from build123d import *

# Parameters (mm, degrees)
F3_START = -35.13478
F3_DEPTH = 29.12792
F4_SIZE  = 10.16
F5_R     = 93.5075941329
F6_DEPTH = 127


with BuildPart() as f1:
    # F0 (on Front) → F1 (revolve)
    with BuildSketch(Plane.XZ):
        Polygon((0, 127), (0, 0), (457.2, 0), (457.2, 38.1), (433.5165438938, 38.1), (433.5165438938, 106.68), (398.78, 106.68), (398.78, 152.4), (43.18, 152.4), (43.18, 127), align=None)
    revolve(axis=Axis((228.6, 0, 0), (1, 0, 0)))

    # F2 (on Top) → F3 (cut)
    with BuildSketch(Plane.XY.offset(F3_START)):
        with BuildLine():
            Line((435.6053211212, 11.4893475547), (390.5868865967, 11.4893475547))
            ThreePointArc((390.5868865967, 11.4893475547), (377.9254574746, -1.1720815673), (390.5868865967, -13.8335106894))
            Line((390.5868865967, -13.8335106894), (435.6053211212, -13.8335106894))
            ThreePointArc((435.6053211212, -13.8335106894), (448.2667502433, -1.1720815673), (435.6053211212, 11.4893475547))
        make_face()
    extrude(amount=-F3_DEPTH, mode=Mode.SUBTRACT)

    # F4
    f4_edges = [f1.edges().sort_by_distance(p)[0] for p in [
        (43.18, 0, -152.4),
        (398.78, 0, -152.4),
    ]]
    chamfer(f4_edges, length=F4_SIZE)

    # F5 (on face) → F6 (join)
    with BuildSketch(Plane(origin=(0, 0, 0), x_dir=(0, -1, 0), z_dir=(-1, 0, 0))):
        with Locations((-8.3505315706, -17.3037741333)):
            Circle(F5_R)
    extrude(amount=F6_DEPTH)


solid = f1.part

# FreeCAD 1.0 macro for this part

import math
import FreeCAD as App
import Part
import Sketcher
Q = App.Units.Quantity


def edges_at(feature, points):
    """Names of the edges that pass closest to the given points."""
    edges = feature.Shape.Edges
    near = lambda p: min(range(len(edges)), key=lambda i: edges[i].distToShape(Part.Vertex(*p))[0])
    return sorted({f"Edge{near(p) + 1}" for p in points})


def add_polygon(sketch, points):
    """Adds a closed chain of lines whose ends are joined by coincident constraints."""
    first, n = sketch.GeometryCount, len(points)
    for a, b in zip(points, points[1:] + points[:1]):
        sketch.addGeometry(Part.LineSegment(App.Vector(*a, 0), App.Vector(*b, 0)), False)
    for i in range(n):
        sketch.addConstraint(Sketcher.Constraint("Coincident", first + i, 2, first + (i + 1) % n, 1))

doc = App.newDocument("Part")
body = doc.addObject("PartDesign::Body", "Body")

sketch1 = doc.addObject("Sketcher::SketchObject", "Sketch")
body.addObject(sketch1)
sketch1.AttachmentSupport = (doc.XZ_Plane, [""])
sketch1.MapMode = "FlatFace"
add_polygon(sketch1, [(0, 127), (0, 0), (457, 0), (457, 38), (434, 38), (434, 107), (399, 107), (399, 152), (43, 152), (43, 127)])
sketch1.addConstraint(Sketcher.Constraint("Vertical", 0))
sketch1.addConstraint(Sketcher.Constraint("Horizontal", 1))
sketch1.addConstraint(Sketcher.Constraint("Vertical", 2))
sketch1.addConstraint(Sketcher.Constraint("Horizontal", 3))
sketch1.addConstraint(Sketcher.Constraint("Vertical", 4))
sketch1.addConstraint(Sketcher.Constraint("Horizontal", 5))
sketch1.addConstraint(Sketcher.Constraint("Vertical", 6))
sketch1.addConstraint(Sketcher.Constraint("Horizontal", 7))
sketch1.addConstraint(Sketcher.Constraint("Vertical", 8))
sketch1.addConstraint(Sketcher.Constraint("Horizontal", 9))
sketch1.addConstraint(Sketcher.Constraint("Coincident", 0, 2, -1, 1))
sketch1.addConstraint(Sketcher.Constraint("DistanceX", 1, 1, 1, 2, Q("18 in")))
sketch1.addConstraint(Sketcher.Constraint("DistanceX", 7, 2, 7, 1, Q("14 in")))
sketch1.addConstraint(Sketcher.Constraint("DistanceY", 0, 2, 0, 1, Q("5 in")))
sketch1.addConstraint(Sketcher.Constraint("DistanceY", 8, 2, 8, 1, Q("1 in")))
sketch1.addConstraint(Sketcher.Constraint("DistanceX", 9, 2, 9, 1, Q("1.7 in")))
sketch1.addConstraint(Sketcher.Constraint("DistanceY", 2, 1, 2, 2, Q("1.5 in")))
sketch1.addConstraint(Sketcher.Constraint("DistanceY", 4, 1, 4, 2, Q("2.7 in")))
sketch1.addConstraint(Sketcher.Constraint("DistanceX", 3, 2, 3, 1, 23.683456))
revolution = doc.addObject("PartDesign::Revolution", "Revolution")
body.addObject(revolution)
revolution.Profile = sketch1
revolution.ReferenceAxis = (sketch1, ["H_Axis"])
revolution.Angle = 360

sketch2 = doc.addObject("Sketcher::SketchObject", "Sketch001")
body.addObject(sketch2)
sketch2.AttachmentSupport = (doc.XY_Plane, [""])
sketch2.MapMode = "FlatFace"
sketch2.AttachmentOffset = App.Placement(App.Vector(0, 0, -35.13478), App.Rotation())
sketch2.addGeometry(Part.LineSegment(App.Vector(436, 11, 0), App.Vector(391, 11, 0)), False)
sketch2.addGeometry(Part.ArcOfCircle(Part.Circle(App.Vector(391, -1, 0), App.Vector(0, 0, 1), 13), math.radians(90), math.radians(270)), False)
sketch2.addGeometry(Part.LineSegment(App.Vector(391, -14, 0), App.Vector(436, -14, 0)), False)
sketch2.addGeometry(Part.ArcOfCircle(Part.Circle(App.Vector(436, -1, 0), App.Vector(0, 0, 1), 13), math.radians(-90), math.radians(90)), False)
sketch2.addConstraint(Sketcher.Constraint("Tangent", 0, 2, 1, 1))
sketch2.addConstraint(Sketcher.Constraint("Tangent", 1, 2, 2, 1))
sketch2.addConstraint(Sketcher.Constraint("Tangent", 2, 2, 3, 1))
sketch2.addConstraint(Sketcher.Constraint("Tangent", 3, 2, 0, 1))
sketch2.addConstraint(Sketcher.Constraint("Horizontal", 0))
sketch2.addConstraint(Sketcher.Constraint("Horizontal", 2))
sketch2.addConstraint(Sketcher.Constraint("Radius", 1, 12.661429))
sketch2.addConstraint(Sketcher.Constraint("DistanceX", 0, 2, 0, 1, 45.018435))
sketch2.addConstraint(Sketcher.Constraint("DistanceY", 1, 3, -1, 1, 1.172082))
sketch2.addConstraint(Sketcher.Constraint("DistanceX", -1, 1, 3, 3, 435.605321))
pocket1 = doc.addObject("PartDesign::Pocket", "Pocket")
body.addObject(pocket1)
pocket1.Profile = sketch2
pocket1.Length = 29.12792
doc.recompute()

chamfer = doc.addObject("PartDesign::Chamfer", "Chamfer")
body.addObject(chamfer)
chamfer.Base = (pocket1, edges_at(pocket1, [(43.18, 0, -152.4), (398.78, 0, -152.4)]))
chamfer.Size = Q("0.4 in")

sketch3 = doc.addObject("Sketcher::SketchObject", "Sketch002")
body.addObject(sketch3)
sketch3.AttachmentSupport = (doc.YZ_Plane, [""])
sketch3.MapMode = "FlatFace"
sketch3.addGeometry(Part.Circle(App.Vector(8, -17, 0), App.Vector(0, 0, 1), 94), False)
sketch3.addConstraint(Sketcher.Constraint("Diameter", 0, 187.015188))
sketch3.addConstraint(Sketcher.Constraint("DistanceX", -1, 1, 0, 3, 8.350532))
sketch3.addConstraint(Sketcher.Constraint("DistanceY", 0, 3, -1, 1, 17.303774))
pad1 = doc.addObject("PartDesign::Pad", "Pad")
body.addObject(pad1)
pad1.Profile = sketch3
pad1.Length = Q("5 in")
pad1.Reversed = True

doc.recompute()
